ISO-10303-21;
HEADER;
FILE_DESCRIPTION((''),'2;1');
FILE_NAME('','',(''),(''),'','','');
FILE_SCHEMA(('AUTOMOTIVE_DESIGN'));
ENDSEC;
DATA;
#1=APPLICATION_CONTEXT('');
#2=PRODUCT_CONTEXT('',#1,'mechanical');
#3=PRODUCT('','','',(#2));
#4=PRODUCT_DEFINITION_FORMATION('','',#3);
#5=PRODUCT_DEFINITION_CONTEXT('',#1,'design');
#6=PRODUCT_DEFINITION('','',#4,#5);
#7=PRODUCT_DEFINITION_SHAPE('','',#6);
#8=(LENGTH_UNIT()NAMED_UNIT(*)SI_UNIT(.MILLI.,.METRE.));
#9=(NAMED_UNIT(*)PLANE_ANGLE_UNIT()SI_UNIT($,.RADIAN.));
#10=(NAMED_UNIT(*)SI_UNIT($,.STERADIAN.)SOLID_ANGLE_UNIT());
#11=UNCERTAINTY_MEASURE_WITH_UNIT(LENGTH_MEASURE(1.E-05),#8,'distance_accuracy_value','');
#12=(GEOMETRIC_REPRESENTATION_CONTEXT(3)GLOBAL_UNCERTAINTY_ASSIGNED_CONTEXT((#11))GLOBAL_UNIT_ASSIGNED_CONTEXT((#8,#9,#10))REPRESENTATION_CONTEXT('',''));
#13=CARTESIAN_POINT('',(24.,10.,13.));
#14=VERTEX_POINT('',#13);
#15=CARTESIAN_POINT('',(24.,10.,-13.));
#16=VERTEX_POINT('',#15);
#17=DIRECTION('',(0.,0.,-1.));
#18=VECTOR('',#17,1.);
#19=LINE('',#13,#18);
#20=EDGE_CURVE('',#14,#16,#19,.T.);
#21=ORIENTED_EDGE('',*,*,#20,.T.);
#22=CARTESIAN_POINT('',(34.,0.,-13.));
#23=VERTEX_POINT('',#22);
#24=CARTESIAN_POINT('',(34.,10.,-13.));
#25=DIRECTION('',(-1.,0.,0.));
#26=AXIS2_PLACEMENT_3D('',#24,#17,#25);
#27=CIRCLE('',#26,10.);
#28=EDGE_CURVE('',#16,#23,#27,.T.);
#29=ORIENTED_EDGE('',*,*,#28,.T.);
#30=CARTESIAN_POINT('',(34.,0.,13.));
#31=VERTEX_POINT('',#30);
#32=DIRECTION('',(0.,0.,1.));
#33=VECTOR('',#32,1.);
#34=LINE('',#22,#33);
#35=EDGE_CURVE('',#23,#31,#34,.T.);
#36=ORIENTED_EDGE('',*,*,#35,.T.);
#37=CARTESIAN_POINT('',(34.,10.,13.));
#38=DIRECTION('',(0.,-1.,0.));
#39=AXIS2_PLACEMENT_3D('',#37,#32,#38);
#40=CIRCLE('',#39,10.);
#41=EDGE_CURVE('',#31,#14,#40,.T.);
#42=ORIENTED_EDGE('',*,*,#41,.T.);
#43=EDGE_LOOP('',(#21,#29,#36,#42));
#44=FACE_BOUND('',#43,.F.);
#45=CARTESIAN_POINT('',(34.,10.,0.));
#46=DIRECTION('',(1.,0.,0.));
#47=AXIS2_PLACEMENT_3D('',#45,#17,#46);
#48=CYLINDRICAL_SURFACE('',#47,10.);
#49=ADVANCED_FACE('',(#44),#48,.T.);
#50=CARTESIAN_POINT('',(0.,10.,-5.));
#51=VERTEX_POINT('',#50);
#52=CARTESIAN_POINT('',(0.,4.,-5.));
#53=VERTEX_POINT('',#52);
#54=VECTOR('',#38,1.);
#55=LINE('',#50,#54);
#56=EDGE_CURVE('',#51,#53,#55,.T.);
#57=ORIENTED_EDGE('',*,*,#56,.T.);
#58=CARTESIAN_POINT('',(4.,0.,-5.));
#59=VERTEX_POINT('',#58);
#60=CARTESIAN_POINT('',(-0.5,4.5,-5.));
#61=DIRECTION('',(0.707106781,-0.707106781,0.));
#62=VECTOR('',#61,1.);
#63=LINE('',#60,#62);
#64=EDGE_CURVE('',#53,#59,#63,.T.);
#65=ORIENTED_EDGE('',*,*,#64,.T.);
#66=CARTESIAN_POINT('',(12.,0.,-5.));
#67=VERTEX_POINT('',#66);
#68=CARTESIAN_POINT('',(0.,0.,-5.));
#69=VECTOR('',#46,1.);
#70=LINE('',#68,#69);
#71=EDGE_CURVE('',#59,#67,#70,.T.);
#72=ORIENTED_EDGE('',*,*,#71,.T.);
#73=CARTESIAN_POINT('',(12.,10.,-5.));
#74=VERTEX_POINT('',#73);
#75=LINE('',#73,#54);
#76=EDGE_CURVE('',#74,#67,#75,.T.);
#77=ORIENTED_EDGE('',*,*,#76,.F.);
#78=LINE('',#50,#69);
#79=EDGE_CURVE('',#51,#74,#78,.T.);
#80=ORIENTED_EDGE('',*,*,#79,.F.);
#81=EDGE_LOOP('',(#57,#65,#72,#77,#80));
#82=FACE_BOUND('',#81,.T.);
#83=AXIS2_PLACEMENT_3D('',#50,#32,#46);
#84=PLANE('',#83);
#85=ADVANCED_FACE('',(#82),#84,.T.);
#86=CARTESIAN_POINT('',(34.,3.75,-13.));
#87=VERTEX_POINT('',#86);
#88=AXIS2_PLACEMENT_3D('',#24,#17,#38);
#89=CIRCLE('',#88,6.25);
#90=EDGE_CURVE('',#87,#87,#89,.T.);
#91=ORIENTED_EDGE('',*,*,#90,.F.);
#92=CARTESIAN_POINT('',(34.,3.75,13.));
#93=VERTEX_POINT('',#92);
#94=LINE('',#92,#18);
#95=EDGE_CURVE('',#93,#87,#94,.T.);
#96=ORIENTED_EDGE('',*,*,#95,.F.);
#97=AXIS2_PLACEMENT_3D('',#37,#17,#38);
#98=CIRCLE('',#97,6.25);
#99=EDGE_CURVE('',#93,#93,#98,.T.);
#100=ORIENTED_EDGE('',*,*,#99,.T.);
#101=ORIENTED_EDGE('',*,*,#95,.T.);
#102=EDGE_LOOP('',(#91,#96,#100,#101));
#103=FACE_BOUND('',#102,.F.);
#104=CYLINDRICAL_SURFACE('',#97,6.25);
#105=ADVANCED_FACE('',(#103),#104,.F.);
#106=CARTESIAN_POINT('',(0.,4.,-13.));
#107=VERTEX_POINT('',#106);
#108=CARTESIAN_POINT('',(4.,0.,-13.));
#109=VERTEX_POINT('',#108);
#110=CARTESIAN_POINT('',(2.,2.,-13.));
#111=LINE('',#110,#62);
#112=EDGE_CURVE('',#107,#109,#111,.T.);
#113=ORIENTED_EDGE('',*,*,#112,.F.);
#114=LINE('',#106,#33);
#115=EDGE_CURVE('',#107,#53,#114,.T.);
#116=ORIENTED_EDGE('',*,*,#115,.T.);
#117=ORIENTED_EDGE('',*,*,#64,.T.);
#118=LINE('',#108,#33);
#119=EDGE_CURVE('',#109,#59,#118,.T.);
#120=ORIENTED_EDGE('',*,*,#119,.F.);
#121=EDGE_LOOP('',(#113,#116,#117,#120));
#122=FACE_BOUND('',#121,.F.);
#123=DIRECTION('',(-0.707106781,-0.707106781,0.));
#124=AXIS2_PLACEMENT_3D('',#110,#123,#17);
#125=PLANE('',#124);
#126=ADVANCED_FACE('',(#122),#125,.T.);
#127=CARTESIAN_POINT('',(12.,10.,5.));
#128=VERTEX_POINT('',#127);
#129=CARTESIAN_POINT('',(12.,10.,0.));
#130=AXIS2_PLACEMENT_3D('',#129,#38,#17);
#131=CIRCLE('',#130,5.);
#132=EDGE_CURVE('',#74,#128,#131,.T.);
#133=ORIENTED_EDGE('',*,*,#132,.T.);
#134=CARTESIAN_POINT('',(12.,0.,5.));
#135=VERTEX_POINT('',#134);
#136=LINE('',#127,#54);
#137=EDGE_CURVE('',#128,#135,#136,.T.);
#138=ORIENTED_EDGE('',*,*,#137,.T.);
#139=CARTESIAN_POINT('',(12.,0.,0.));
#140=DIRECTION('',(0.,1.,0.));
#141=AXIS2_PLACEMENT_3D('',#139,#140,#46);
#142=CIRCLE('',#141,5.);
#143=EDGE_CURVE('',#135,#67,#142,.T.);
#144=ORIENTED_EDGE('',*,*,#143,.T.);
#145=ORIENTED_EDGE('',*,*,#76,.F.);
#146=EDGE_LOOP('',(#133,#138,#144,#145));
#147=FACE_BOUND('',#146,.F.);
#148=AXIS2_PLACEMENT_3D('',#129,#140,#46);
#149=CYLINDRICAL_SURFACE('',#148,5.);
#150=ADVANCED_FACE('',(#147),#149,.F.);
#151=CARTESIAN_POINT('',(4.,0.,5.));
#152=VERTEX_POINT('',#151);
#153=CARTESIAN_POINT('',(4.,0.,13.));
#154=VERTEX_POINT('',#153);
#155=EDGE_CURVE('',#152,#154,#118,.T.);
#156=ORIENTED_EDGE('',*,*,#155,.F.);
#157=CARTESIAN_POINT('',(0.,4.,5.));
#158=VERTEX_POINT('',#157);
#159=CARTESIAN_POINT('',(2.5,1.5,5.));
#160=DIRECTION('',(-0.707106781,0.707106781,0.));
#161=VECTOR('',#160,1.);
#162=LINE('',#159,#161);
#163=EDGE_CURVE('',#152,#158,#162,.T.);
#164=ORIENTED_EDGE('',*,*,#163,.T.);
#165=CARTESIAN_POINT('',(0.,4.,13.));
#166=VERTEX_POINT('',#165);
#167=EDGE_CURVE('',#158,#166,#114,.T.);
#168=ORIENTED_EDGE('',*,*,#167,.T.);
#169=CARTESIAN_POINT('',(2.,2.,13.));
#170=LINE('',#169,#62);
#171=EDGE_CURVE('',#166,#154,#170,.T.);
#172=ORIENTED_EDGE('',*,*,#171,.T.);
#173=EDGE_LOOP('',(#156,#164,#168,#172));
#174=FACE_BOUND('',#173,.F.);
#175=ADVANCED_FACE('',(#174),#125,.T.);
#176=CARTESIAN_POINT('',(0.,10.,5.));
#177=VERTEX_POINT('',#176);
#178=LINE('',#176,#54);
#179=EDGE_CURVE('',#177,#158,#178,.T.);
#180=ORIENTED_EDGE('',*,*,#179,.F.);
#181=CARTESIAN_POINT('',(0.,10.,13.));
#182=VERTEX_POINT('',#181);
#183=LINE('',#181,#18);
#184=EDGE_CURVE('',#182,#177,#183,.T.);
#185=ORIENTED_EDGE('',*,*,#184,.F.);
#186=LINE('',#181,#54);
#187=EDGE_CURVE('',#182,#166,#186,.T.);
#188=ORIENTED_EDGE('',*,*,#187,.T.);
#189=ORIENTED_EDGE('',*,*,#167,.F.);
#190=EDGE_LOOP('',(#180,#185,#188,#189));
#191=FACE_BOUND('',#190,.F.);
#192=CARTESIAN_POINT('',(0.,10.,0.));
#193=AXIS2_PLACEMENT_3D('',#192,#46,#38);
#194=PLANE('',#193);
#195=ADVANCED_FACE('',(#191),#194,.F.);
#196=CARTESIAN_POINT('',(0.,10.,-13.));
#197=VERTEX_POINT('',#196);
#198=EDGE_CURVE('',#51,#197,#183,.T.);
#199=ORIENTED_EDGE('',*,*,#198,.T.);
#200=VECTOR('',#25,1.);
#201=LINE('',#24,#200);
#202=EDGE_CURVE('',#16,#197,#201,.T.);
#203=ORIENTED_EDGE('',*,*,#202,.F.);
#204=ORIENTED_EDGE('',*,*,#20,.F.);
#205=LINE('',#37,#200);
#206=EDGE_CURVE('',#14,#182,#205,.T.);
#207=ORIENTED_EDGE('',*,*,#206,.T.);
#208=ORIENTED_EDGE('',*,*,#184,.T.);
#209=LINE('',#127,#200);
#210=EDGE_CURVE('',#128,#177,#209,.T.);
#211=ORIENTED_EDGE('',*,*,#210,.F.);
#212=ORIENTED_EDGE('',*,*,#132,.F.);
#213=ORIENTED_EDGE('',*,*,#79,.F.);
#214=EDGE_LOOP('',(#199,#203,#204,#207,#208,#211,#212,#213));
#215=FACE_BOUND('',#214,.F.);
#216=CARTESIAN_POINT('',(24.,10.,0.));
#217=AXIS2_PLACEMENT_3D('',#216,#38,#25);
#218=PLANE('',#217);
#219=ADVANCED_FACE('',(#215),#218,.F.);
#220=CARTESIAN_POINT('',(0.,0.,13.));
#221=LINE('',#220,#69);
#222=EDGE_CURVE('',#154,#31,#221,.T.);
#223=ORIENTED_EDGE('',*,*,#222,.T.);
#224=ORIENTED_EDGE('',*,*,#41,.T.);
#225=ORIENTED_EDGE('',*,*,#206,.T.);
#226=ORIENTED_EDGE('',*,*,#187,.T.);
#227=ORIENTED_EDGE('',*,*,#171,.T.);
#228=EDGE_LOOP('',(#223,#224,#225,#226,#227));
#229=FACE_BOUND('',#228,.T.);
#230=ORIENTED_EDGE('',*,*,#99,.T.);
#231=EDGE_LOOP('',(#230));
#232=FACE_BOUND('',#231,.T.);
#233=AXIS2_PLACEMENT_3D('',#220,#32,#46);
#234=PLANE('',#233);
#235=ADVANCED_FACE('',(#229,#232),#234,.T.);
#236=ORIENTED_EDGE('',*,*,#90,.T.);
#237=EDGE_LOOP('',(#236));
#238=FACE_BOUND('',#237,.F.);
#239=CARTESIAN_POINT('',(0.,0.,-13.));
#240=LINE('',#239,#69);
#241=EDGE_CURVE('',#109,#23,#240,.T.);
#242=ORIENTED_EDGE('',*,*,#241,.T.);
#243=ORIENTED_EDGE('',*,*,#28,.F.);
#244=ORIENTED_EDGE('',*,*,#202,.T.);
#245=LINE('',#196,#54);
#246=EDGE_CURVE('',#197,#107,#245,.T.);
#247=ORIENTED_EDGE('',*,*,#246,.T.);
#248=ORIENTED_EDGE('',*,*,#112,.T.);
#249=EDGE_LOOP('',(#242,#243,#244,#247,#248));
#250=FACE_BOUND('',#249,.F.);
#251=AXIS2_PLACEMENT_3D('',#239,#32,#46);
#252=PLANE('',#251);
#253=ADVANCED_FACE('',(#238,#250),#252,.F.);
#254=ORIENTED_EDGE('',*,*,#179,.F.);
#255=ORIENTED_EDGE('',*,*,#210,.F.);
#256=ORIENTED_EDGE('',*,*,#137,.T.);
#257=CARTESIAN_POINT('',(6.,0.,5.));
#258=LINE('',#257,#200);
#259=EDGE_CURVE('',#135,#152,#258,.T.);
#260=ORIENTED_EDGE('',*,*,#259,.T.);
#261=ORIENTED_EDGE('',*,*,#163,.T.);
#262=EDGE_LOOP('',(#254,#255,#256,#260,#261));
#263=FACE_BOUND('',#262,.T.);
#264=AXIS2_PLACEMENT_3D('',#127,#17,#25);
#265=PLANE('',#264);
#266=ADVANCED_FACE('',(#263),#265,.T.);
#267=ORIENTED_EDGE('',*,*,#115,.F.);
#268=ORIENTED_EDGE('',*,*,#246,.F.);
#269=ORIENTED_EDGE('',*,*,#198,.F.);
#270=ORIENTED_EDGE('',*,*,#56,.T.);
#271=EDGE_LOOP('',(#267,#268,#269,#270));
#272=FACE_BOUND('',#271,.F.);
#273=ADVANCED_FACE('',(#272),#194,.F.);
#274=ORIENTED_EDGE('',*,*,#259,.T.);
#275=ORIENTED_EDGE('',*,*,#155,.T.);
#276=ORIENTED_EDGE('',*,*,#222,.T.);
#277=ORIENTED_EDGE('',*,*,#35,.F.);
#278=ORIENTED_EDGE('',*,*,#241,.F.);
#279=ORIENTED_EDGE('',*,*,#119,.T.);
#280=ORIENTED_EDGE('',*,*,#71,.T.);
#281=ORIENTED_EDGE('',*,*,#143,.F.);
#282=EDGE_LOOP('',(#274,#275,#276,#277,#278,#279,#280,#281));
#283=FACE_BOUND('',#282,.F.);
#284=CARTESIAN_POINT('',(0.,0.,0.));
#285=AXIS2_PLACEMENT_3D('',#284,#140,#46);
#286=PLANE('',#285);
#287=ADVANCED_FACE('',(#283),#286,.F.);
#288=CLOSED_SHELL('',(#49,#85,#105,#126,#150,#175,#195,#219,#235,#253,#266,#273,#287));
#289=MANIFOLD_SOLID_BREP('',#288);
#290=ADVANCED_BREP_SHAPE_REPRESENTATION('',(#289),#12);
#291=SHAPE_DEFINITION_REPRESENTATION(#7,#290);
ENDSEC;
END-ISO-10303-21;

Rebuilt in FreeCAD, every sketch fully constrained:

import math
import FreeCAD as App
import Part
import Sketcher
from FreeCAD import Vector
Q = App.Units.Quantity


def edges_at(feature, points):
    """Names of the edges that pass closest to the given points."""
    edges = feature.Shape.Edges
    near = lambda p: min(range(len(edges)), key=lambda i: edges[i].distToShape(Part.Vertex(*p))[0])
    return sorted({f"Edge{near(p) + 1}" for p in points})

doc = App.newDocument("Part")
params = doc.addObject("Spreadsheet::Sheet", "Params")
for row, (alias, value) in enumerate([
    ("sketch1_radius", "10 mm"),
    ("sketch1_width", "34 mm"),
    ("sketch1_height", "10 mm"),
    ("pad1_length", "26 mm"),
    ("chamfer_size", "4 mm"),
    ("sketch2_diameter", "12.5 mm"),
    ("hole_diameter", "12.5 mm"),
    ("sketch3_radius", "5 mm"),
    ("sketch3_width", "12 mm"),
], start=1):
    params.set(f"A{row}", alias)
    params.set(f"B{row}", "=" + value)
    params.setAlias(f"B{row}", alias)

body = doc.addObject("PartDesign::Body", "Body")

# Sketch on XY plane
sketch1 = body.newObject("Sketcher::SketchObject", "Sketch")
sketch1.AttachmentSupport = (doc.getObject("XY_Plane"), [""])
sketch1.MapMode = "FlatFace"
sketch1.addGeometry([
    Part.LineSegment(Vector(0, 10, 0), Vector(0, 0, 0)),
    Part.LineSegment(Vector(0, 0, 0), Vector(34, 0, 0)),
    Part.ArcOfCircle(Part.Circle(Vector(34, 10, 0), Vector(0, 0, 1), 10), math.radians(-90), math.radians(180)),
    Part.LineSegment(Vector(24, 10, 0), Vector(0, 10, 0)),
], False)
sketch1.addConstraint([
    Sketcher.Constraint("Coincident", 0, 2, 1, 1),
    Sketcher.Constraint("Tangent", 1, 2, 2, 1),
    Sketcher.Constraint("Coincident", 2, 2, 3, 1),
    Sketcher.Constraint("Coincident", 3, 2, 0, 1),
    Sketcher.Constraint("Vertical", 0),
    Sketcher.Constraint("Horizontal", 1),
    Sketcher.Constraint("Horizontal", 3),
    Sketcher.Constraint("Coincident", 0, 2, -1, 1),
    Sketcher.Constraint("Radius", 2, Q("10 mm")),
    Sketcher.Constraint("DistanceX", 1, 1, 1, 2, Q("34 mm")),
    Sketcher.Constraint("DistanceY", 0, 2, 0, 1, Q("10 mm")),
])
sketch1.setExpression("Constraints[8]", "Params.sketch1_radius")
sketch1.setExpression("Constraints[9]", "Params.sketch1_width")
sketch1.setExpression("Constraints[10]", "Params.sketch1_height")
pad1 = body.newObject("PartDesign::Pad", "Pad")
pad1.Profile = sketch1
pad1.setExpression("Length", "Params.pad1_length")
pad1.Midplane = True
doc.recompute()

chamfer = body.newObject("PartDesign::Chamfer", "Chamfer")
chamfer.Base = (pad1, edges_at(pad1, [(0, 0, 0)]))
chamfer.setExpression("Size", "Params.chamfer_size")

# Sketch on XY plane
sketch2 = body.newObject("Sketcher::SketchObject", "Sketch001")
sketch2.AttachmentSupport = (doc.getObject("XY_Plane"), [""])
sketch2.MapMode = "FlatFace"
sketch2.AttachmentOffset = App.Placement(Vector(0, 0, 13), App.Rotation())
sketch2.addGeometry(Part.Circle(Vector(34, 10, 0), Vector(0, 0, 1), 6), False)
sketch2.addConstraint([
    Sketcher.Constraint("Diameter", 0, Q("12.5 mm")),
    Sketcher.Constraint("DistanceX", -1, 1, 0, 3, Q("34 mm")),
    Sketcher.Constraint("DistanceY", -1, 1, 0, 3, Q("10 mm")),
])
sketch2.setExpression("Constraints[0]", "Params.sketch2_diameter")
doc.recompute()
hole = body.newObject("PartDesign::Hole", "Hole")
hole.Profile = sketch2
hole.ThreadType = "None"
hole.setExpression("Diameter", "Params.hole_diameter")
hole.DepthType = "ThroughAll"

# Sketch on XZ plane
sketch3 = body.newObject("Sketcher::SketchObject", "Sketch002")
sketch3.AttachmentSupport = (doc.getObject("XZ_Plane"), [""])
sketch3.MapMode = "FlatFace"
sketch3.AttachmentOffset = App.Placement(Vector(0, 0, -10), App.Rotation())
sketch3.addGeometry([
    Part.LineSegment(Vector(12, -5, 0), Vector(0, -5, 0)),
    Part.LineSegment(Vector(0, -5, 0), Vector(0, 5, 0)),
    Part.LineSegment(Vector(0, 5, 0), Vector(12, 5, 0)),
    Part.ArcOfCircle(Part.Circle(Vector(12, 0, 0), Vector(0, 0, 1), 5), math.radians(-90), math.radians(90)),
], False)
sketch3.addConstraint([
    Sketcher.Constraint("Coincident", 0, 2, 1, 1),
    Sketcher.Constraint("Coincident", 1, 2, 2, 1),
    Sketcher.Constraint("Tangent", 2, 2, 3, 2),
    Sketcher.Constraint("Tangent", 3, 1, 0, 1),
    Sketcher.Constraint("Horizontal", 0),
    Sketcher.Constraint("Vertical", 1),
    Sketcher.Constraint("Horizontal", 2),
    Sketcher.Constraint("Symmetric", 0, 2, 1, 2, -1, 1),
    Sketcher.Constraint("Radius", 3, Q("5 mm")),
    Sketcher.Constraint("DistanceX", 0, 2, 0, 1, Q("12 mm")),
])
sketch3.setExpression("Constraints[8]", "Params.sketch3_radius")
sketch3.setExpression("Constraints[9]", "Params.sketch3_width")
pocket1 = body.newObject("PartDesign::Pocket", "Pocket")
pocket1.Profile = sketch3
pocket1.Type = "ThroughAll"
pocket1.Reversed = True

doc.recompute()
